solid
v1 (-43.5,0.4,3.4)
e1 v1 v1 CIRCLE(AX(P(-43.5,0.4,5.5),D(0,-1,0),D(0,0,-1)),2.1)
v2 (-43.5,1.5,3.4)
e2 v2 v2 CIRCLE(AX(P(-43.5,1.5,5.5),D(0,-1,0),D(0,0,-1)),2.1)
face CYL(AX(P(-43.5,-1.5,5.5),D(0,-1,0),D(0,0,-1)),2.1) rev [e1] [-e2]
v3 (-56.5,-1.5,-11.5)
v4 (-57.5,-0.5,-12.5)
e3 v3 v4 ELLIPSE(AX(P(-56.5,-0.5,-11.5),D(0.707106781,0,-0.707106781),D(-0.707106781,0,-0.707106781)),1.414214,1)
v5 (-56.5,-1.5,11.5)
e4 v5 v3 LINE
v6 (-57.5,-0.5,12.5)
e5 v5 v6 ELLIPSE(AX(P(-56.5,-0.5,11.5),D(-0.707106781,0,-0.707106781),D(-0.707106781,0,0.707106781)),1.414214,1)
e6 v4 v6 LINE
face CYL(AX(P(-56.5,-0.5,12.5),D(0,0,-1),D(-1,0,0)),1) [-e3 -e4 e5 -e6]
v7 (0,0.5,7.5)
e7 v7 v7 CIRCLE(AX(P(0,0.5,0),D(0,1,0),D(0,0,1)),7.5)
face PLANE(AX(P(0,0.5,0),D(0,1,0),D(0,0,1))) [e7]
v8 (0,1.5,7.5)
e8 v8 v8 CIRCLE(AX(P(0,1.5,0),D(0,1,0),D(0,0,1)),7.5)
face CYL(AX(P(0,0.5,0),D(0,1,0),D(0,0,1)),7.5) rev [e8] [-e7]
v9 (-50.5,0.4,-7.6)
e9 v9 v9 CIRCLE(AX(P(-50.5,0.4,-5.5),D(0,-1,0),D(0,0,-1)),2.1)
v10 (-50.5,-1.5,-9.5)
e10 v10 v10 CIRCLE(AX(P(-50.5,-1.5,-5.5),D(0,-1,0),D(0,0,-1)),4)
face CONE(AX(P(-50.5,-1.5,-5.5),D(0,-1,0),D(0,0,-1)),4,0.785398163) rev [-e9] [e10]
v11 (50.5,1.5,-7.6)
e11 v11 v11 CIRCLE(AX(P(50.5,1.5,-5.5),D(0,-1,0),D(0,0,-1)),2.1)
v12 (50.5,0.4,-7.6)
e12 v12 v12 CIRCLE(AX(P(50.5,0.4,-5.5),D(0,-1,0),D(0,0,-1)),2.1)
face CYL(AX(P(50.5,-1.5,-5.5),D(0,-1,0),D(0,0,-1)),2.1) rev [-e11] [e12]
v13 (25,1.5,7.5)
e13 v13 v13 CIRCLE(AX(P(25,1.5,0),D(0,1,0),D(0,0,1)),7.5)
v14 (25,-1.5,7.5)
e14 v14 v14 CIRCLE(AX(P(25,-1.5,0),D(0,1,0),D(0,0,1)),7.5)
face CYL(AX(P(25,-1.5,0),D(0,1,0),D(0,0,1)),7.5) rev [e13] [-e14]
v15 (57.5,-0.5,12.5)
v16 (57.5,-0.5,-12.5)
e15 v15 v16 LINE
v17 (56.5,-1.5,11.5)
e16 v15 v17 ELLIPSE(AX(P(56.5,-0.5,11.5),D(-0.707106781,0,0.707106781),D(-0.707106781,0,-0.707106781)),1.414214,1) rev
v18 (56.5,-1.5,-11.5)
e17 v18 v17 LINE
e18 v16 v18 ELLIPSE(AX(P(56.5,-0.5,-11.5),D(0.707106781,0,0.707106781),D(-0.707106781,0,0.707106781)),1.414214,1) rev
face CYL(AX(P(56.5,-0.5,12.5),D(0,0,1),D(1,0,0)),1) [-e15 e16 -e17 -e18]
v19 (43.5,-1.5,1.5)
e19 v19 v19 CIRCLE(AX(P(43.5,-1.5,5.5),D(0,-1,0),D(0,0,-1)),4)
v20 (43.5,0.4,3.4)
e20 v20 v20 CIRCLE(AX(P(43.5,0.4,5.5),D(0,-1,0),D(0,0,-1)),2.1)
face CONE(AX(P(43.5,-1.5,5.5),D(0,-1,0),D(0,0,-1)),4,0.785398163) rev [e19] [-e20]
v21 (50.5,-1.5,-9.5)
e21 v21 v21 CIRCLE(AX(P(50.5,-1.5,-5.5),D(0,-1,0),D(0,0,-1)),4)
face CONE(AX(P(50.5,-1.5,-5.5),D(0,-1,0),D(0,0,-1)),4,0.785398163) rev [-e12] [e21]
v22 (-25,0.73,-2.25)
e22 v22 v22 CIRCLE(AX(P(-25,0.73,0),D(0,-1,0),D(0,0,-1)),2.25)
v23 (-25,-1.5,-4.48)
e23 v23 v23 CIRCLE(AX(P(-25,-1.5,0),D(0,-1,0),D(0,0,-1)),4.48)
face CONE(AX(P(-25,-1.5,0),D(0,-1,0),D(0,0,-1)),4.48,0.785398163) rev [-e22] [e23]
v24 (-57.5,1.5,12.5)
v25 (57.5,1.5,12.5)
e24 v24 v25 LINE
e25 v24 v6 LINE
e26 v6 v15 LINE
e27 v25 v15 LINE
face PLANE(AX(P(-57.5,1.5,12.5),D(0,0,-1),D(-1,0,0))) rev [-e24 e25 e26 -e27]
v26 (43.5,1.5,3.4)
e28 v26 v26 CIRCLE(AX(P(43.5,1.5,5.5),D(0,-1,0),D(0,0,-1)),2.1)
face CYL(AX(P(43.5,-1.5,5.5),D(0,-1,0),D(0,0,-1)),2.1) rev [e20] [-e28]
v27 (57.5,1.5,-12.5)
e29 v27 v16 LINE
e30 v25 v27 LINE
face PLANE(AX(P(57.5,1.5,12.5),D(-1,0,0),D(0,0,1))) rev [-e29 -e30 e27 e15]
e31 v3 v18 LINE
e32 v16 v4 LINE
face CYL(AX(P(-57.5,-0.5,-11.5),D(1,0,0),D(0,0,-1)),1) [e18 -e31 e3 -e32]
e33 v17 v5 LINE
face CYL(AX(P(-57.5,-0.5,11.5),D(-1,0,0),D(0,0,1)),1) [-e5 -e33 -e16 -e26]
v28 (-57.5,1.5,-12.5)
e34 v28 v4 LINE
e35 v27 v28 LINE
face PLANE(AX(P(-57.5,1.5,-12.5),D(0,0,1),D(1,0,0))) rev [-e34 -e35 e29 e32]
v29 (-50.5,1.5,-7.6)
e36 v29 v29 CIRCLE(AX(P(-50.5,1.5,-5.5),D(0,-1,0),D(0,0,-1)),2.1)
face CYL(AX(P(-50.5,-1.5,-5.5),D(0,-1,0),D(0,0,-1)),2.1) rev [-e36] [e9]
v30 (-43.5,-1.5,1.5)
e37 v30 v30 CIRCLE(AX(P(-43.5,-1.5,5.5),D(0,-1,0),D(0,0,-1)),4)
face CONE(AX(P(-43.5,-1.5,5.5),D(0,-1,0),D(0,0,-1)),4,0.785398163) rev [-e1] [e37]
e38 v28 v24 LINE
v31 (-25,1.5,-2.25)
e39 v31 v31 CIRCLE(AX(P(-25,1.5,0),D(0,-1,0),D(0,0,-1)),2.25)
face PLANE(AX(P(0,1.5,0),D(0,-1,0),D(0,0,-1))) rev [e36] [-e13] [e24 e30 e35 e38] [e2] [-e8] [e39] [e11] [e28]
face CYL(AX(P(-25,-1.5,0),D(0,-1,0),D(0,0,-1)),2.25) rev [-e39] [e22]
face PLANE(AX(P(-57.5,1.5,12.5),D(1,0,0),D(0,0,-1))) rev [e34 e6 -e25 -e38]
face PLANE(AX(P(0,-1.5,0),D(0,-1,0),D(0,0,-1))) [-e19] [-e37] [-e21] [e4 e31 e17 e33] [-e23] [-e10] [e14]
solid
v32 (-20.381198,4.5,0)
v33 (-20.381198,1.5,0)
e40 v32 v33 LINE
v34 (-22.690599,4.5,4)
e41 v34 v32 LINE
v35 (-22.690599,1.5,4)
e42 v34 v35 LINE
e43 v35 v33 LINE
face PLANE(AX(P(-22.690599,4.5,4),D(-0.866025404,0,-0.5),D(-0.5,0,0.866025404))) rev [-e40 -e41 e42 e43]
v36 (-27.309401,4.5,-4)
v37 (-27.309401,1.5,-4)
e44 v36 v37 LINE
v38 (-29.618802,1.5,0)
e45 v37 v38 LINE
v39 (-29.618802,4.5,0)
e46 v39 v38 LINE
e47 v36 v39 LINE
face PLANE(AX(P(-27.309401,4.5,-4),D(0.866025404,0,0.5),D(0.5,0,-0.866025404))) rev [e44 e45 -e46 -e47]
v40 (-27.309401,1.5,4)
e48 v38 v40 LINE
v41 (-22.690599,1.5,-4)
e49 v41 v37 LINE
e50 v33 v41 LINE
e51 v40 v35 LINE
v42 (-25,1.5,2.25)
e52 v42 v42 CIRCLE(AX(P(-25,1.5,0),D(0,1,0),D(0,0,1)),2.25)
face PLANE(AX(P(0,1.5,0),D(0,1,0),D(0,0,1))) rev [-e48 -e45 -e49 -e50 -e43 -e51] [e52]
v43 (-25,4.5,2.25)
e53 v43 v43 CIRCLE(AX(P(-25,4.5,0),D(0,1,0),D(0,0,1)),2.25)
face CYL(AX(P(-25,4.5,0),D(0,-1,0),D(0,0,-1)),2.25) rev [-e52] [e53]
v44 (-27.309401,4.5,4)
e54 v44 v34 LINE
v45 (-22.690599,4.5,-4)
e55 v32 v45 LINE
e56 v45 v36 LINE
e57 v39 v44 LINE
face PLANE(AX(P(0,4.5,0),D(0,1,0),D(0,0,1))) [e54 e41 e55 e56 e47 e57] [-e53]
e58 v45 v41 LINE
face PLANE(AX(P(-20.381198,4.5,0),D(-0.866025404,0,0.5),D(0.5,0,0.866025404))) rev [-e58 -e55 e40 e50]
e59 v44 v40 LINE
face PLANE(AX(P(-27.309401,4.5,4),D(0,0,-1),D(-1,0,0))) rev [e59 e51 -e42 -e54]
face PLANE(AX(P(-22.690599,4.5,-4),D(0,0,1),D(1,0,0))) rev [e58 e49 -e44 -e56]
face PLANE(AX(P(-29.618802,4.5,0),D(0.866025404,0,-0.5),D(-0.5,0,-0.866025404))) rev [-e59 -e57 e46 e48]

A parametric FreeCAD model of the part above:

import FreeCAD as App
import Part
import Sketcher
Q = App.Units.Quantity


def edges_at(feature, points):
    """Names of the edges that pass closest to the given points."""
    edges = feature.Shape.Edges
    near = lambda p: min(range(len(edges)), key=lambda i: edges[i].distToShape(Part.Vertex(*p))[0])
    return sorted({f"Edge{near(p) + 1}" for p in points})


def add_polygon(sketch, points):
    """Adds a closed chain of lines whose ends are joined by coincident constraints."""
    first, n = sketch.GeometryCount, len(points)
    for a, b in zip(points, points[1:] + points[:1]):
        sketch.addGeometry(Part.LineSegment(App.Vector(*a, 0), App.Vector(*b, 0)), False)
    for i in range(n):
        sketch.addConstraint(Sketcher.Constraint("Coincident", first + i, 2, first + (i + 1) % n, 1))

doc = App.newDocument("Part")
body = doc.addObject("PartDesign::Body", "Body")

sketch1 = body.newObject("Sketcher::SketchObject", "Sketch")
sketch1.AttachmentSupport = (doc.getObject("XZ_Plane"), [""])
sketch1.MapMode = "FlatFace"
add_polygon(sketch1, [(-58, -12), (-58, 12), (58, 12), (58, -12)])
sketch1.addConstraint(Sketcher.Constraint("Vertical", 0))
sketch1.addConstraint(Sketcher.Constraint("Horizontal", 1))
sketch1.addConstraint(Sketcher.Constraint("Vertical", 2))
sketch1.addConstraint(Sketcher.Constraint("Horizontal", 3))
sketch1.addConstraint(Sketcher.Constraint("Symmetric", 0, 2, 2, 2, -1, 1))
sketch1.addConstraint(Sketcher.Constraint("DistanceX", 1, 1, 1, 2, 115.0))
sketch1.addConstraint(Sketcher.Constraint("DistanceY", 0, 1, 0, 2, 25.0))
pad1 = body.newObject("PartDesign::Pad", "Pad")
pad1.Profile = sketch1
pad1.Length = 3
pad1.Midplane = True

sketch2 = body.newObject("Sketcher::SketchObject", "Sketch001")
sketch2.AttachmentSupport = (doc.getObject("XZ_Plane"), [""])
sketch2.MapMode = "FlatFace"
sketch2.AttachmentOffset = App.Placement(App.Vector(0, 0, -1.5), App.Rotation())
sketch2.addGeometry(Part.Circle(App.Vector(25, 0, 0), App.Vector(0, 0, 1), 8), False)
sketch2.addConstraint(Sketcher.Constraint("PointOnObject", 0, 3, -1))
sketch2.addConstraint(Sketcher.Constraint("Diameter", 0, 15.0))
sketch2.addConstraint(Sketcher.Constraint("DistanceX", -1, 1, 0, 3, 25.0))
pocket1 = body.newObject("PartDesign::Pocket", "Pocket")
pocket1.Profile = sketch2
pocket1.Type = "ThroughAll"
pocket1.Reversed = True

sketch3 = body.newObject("Sketcher::SketchObject", "Sketch002")
sketch3.AttachmentSupport = (doc.getObject("XZ_Plane"), [""])
sketch3.MapMode = "FlatFace"
sketch3.AttachmentOffset = App.Placement(App.Vector(0, 0, -1.5), App.Rotation())
sketch3.addGeometry(Part.Circle(App.Vector(0, 0, 0), App.Vector(0, 0, 1), 8), False)
sketch3.addConstraint(Sketcher.Constraint("Coincident", 0, 3, -1, 1))
sketch3.addConstraint(Sketcher.Constraint("Diameter", 0, 15.0))
pocket2 = body.newObject("PartDesign::Pocket", "Pocket001")
pocket2.Profile = sketch3
pocket2.Length = 1
pocket2.Reversed = True

sketch4 = body.newObject("Sketcher::SketchObject", "Sketch003")
sketch4.AttachmentSupport = (doc.getObject("YZ_Plane"), [""])
sketch4.MapMode = "FlatFace"
sketch4.AttachmentOffset = App.Placement(App.Vector(0, 0, 50.5), App.Rotation())
add_polygon(sketch4, [(1.5, -5.5), (-1.5, -5.5), (-1.5, -9.5), (0.4, -7.6), (1.5, -7.6)])
sketch4.addGeometry(Part.LineSegment(App.Vector(-1.5, -5.5, 0), App.Vector(1.5, -5.5, 0)), True)
sketch4.addConstraint(Sketcher.Constraint("Horizontal", 0))
sketch4.addConstraint(Sketcher.Constraint("Vertical", 1))
sketch4.addConstraint(Sketcher.Constraint("Horizontal", 3))
sketch4.addConstraint(Sketcher.Constraint("Vertical", 4))
sketch4.addConstraint(Sketcher.Constraint("Horizontal", 5))
sketch4.addConstraint(Sketcher.Constraint("Coincident", 5, 1, 0, 2))
sketch4.addConstraint(Sketcher.Constraint("Vertical", 3, 2, 5, 2))
sketch4.addConstraint(Sketcher.Constraint("DistanceX", 0, 2, 0, 1, 3.0))
sketch4.addConstraint(Sketcher.Constraint("DistanceY", 1, 2, 1, 1, 4.0))
sketch4.addConstraint(Sketcher.Constraint("Angle", 2, Q("45 deg")))
sketch4.addConstraint(Sketcher.Constraint("DistanceX", 3, 1, 3, 2, 1.1))
sketch4.addConstraint(Sketcher.Constraint("DistanceX", 0, 2, -1, 1, 1.5))
sketch4.addConstraint(Sketcher.Constraint("DistanceY", 0, 2, -1, 1, 5.5))
groove = body.newObject("PartDesign::Groove", "Groove")
groove.Profile = sketch4
groove.ReferenceAxis = (sketch4, ["Axis0"])
groove.Angle = 360
doc.recompute()

datumline = body.newObject("PartDesign::Line", "DatumLine")
datumline.Placement = App.Placement(App.Vector(0, 0, 0), App.Rotation(App.Vector(0, 0, 1), App.Vector(-0.536875492, 0, 0.843661488)))
linearpattern = body.newObject("PartDesign::LinearPattern", "LinearPattern")
linearpattern.Originals = [groove]
linearpattern.Direction = (datumline, [""])
linearpattern.Mode = "offset"
linearpattern.Offset = 13.038405
linearpattern.Occurrences = 2
body.Tip = linearpattern
doc.recompute()

datumline2 = body.newObject("PartDesign::Line", "DatumLine001")
datumline2.Placement = App.Placement(App.Vector(0, 0, 0), App.Rotation(App.Vector(0, 0, 1), App.Vector(-0.993222539, 0, 0.116228169)))
linearpattern2 = body.newObject("PartDesign::LinearPattern", "LinearPattern001")
linearpattern2.Originals = [groove]
linearpattern2.Direction = (datumline2, [""])
linearpattern2.Mode = "offset"
linearpattern2.Offset = 94.641429
linearpattern2.Occurrences = 2
body.Tip = linearpattern2
doc.recompute()

linearpattern3 = body.newObject("PartDesign::LinearPattern", "LinearPattern002")
linearpattern3.Originals = [groove]
linearpattern3.Direction = (doc.getObject("X_Axis"), [""])
linearpattern3.Mode = "offset"
linearpattern3.Offset = 101
linearpattern3.Occurrences = 2
linearpattern3.Reversed = True
body.Tip = linearpattern3
doc.recompute()

fillet = body.newObject("PartDesign::Fillet", "Fillet")
fillet.Base = (linearpattern3, edges_at(linearpattern3, [
    (0, -1.5, 12.5),
    (-57.5, -1.5, 0),
    (0, -1.5, -12.5),
    (57.5, -1.5, 0),
]))
fillet.Radius = 1

sketch5 = body.newObject("Sketcher::SketchObject", "Sketch004")
sketch5.AttachmentSupport = (doc.getObject("YZ_Plane"), [""])
sketch5.MapMode = "FlatFace"
sketch5.AttachmentOffset = App.Placement(App.Vector(0, 0, -25), App.Rotation())
add_polygon(sketch5, [(1.5, 0), (-1.5, 0), (-1.5, -4.5), (0.7, -2.2), (1.5, -2.2)])
sketch5.addConstraint(Sketcher.Constraint("Horizontal", 0))
sketch5.addConstraint(Sketcher.Constraint("Vertical", 1))
sketch5.addConstraint(Sketcher.Constraint("Horizontal", 3))
sketch5.addConstraint(Sketcher.Constraint("Vertical", 4))
sketch5.addConstraint(Sketcher.Constraint("Symmetric", 0, 2, 4, 2, -1, 1))
sketch5.addConstraint(Sketcher.Constraint("DistanceX", 0, 2, 0, 1, 3.0))
sketch5.addConstraint(Sketcher.Constraint("Angle", 2, Q("45 deg")))
sketch5.addConstraint(Sketcher.Constraint("DistanceX", 3, 1, 3, 2, 0.77))
sketch5.addConstraint(Sketcher.Constraint("DistanceY", 1, 2, 1, 1, 4.48))
groove2 = body.newObject("PartDesign::Groove", "Groove001")
groove2.Profile = sketch5
groove2.ReferenceAxis = (sketch5, ["H_Axis"])
groove2.Angle = 360
body2 = doc.addObject("PartDesign::Body", "Body001")

sketch6 = body2.newObject("Sketcher::SketchObject", "Sketch005")
sketch6.AttachmentSupport = (doc.getObject("XZ_Plane001"), [""])
sketch6.MapMode = "FlatFace"
sketch6.AttachmentOffset = App.Placement(App.Vector(0, 0, -1.5), App.Rotation())
add_polygon(sketch6, [(-22.7, 4), (-20.4, 0), (-22.7, -4), (-27.3, -4), (-29.6, 0), (-27.3, 4)])
sketch6.addGeometry(Part.Circle(App.Vector(-25, 0, 0), App.Vector(0, 0, 1), 2.2), False)
sketch6.addConstraint(Sketcher.Constraint("Horizontal", 2))
sketch6.addConstraint(Sketcher.Constraint("Horizontal", 5))
sketch6.addConstraint(Sketcher.Constraint("Symmetric", 2, 2, 4, 2, -1))
sketch6.addConstraint(Sketcher.Constraint("PointOnObject", 6, 3, -1))
sketch6.addConstraint(Sketcher.Constraint("PointOnObject", 0, 2, -1))
sketch6.addConstraint(Sketcher.Constraint("PointOnObject", 3, 2, -1))
sketch6.addConstraint(Sketcher.Constraint("Parallel", 0, 3))
sketch6.addConstraint(Sketcher.Constraint("Parallel", 1, 4))
sketch6.addConstraint(Sketcher.Constraint("Diameter", 6, 4.5))
sketch6.addConstraint(Sketcher.Constraint("Angle", 0, Q("-60 deg")))
sketch6.addConstraint(Sketcher.Constraint("DistanceX", 6, 3, -1, 1, 25.0))
sketch6.addConstraint(Sketcher.Constraint("DistanceY", 1, 2, -1, 1, 4.0))
sketch6.addConstraint(Sketcher.Constraint("DistanceX", 1, 2, -1, 1, 22.690599))
sketch6.addConstraint(Sketcher.Constraint("DistanceX", 2, 2, -1, 1, 27.309401))
pad2 = body2.newObject("PartDesign::Pad", "Pad001")
pad2.Profile = sketch6
pad2.Length = 3
pad2.Reversed = True

doc.recompute()
